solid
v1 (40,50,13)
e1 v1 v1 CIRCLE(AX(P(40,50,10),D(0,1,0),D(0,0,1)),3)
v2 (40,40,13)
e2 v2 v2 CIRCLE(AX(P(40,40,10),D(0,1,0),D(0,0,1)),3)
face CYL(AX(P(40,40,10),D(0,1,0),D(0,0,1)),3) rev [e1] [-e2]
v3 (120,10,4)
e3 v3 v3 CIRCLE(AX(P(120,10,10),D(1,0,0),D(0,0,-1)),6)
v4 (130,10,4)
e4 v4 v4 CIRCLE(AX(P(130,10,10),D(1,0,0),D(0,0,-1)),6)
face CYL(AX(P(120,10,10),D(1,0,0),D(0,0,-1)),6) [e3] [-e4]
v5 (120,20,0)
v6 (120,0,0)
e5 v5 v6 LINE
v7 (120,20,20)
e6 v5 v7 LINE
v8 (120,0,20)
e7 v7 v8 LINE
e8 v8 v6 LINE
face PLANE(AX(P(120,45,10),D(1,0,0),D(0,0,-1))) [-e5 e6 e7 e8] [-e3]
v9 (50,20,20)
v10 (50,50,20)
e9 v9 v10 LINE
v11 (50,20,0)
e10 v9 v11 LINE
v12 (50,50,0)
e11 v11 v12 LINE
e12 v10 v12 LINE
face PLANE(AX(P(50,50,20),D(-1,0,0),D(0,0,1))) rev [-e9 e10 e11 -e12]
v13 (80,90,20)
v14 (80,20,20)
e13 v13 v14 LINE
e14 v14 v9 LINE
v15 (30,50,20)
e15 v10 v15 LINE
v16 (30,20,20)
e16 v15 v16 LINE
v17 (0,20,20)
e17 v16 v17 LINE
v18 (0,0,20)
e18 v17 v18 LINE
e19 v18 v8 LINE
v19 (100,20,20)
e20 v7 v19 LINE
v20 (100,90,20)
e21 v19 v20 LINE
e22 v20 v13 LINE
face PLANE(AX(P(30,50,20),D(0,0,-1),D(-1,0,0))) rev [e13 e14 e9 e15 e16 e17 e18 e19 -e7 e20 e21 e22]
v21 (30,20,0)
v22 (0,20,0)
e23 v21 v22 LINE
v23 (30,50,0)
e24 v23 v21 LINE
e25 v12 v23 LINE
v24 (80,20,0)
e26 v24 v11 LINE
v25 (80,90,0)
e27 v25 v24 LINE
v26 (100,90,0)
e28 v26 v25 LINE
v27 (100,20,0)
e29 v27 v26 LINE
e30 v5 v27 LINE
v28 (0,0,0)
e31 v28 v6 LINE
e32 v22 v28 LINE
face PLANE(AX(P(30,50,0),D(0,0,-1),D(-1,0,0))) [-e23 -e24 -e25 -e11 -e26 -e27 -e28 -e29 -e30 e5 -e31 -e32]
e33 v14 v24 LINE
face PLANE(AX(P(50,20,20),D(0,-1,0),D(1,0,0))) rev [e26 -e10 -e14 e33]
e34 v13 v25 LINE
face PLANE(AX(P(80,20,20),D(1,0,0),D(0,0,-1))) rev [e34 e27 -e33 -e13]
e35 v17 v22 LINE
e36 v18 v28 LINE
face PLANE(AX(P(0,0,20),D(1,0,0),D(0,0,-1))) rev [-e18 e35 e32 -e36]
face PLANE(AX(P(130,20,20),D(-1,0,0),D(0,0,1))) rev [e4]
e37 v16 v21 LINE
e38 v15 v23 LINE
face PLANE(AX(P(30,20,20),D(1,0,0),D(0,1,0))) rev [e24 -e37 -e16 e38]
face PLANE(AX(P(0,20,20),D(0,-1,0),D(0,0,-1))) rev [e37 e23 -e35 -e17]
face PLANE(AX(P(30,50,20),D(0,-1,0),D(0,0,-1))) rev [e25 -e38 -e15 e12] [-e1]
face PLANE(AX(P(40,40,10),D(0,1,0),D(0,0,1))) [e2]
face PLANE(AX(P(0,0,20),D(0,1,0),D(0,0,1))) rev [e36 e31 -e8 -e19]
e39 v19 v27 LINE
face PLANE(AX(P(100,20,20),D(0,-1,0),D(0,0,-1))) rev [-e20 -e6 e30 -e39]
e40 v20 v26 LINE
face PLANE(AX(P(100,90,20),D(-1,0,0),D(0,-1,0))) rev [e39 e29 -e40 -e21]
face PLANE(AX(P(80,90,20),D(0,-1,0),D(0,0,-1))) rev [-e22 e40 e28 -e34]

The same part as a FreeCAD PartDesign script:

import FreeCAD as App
import Part
import Sketcher
Q = App.Units.Quantity


def add_polygon(sketch, points):
    """Adds a closed chain of lines whose ends are joined by coincident constraints."""
    first, n = sketch.GeometryCount, len(points)
    for a, b in zip(points, points[1:] + points[:1]):
        sketch.addGeometry(Part.LineSegment(App.Vector(*a, 0), App.Vector(*b, 0)), False)
    for i in range(n):
        sketch.addConstraint(Sketcher.Constraint("Coincident", first + i, 2, first + (i + 1) % n, 1))

doc = App.newDocument("Part")
body = doc.addObject("PartDesign::Body", "Body")

sketch1 = body.newObject("Sketcher::SketchObject", "Sketch")
sketch1.AttachmentSupport = (doc.getObject("XY_Plane"), [""])
sketch1.MapMode = "FlatFace"
add_polygon(sketch1, [(50, 50), (30, 50), (30, 20), (0, 20), (0, 0), (130, 0), (130, 20), (100, 20), (100, 90), (80, 90), (80, 20), (50, 20)])
sketch1.addConstraint([
    Sketcher.Constraint("Horizontal", 0),
    Sketcher.Constraint("Vertical", 1),
    Sketcher.Constraint("Horizontal", 2),
    Sketcher.Constraint("Vertical", 3),
    Sketcher.Constraint("Horizontal", 4),
    Sketcher.Constraint("Vertical", 5),
    Sketcher.Constraint("Horizontal", 6),
    Sketcher.Constraint("Vertical", 7),
    Sketcher.Constraint("Horizontal", 8),
    Sketcher.Constraint("Vertical", 9),
    Sketcher.Constraint("Horizontal", 10),
    Sketcher.Constraint("Vertical", 11),
    Sketcher.Constraint("Coincident", 3, 2, -1, 1),
    Sketcher.Constraint("Horizontal", 2, 2, 5, 2),
    Sketcher.Constraint("Horizontal", 6, 2, 9, 2),
    Sketcher.Constraint("Equal", 2, 6),
    Sketcher.Constraint("Equal", 0, 8),
    Sketcher.Constraint("Equal", 6, 10),
    Sketcher.Constraint("Equal", 10, 1),
    Sketcher.Constraint("Equal", 8, 3),
    Sketcher.Constraint("DistanceX", 0, 2, 0, 1, Q("20 mm")),
    Sketcher.Constraint("DistanceX", 2, 2, 2, 1, Q("30 mm")),
    Sketcher.Constraint("DistanceY", 7, 1, 7, 2, Q("70 mm")),
])
pad1 = body.newObject("PartDesign::Pad", "Pad")
pad1.Profile = sketch1
pad1.Length = 20

sketch2 = body.newObject("Sketcher::SketchObject", "Sketch001")
sketch2.AttachmentSupport = (doc.getObject("XZ_Plane"), [""])
sketch2.MapMode = "FlatFace"
sketch2.AttachmentOffset = App.Placement(App.Vector(0, 0, -50), App.Rotation())
sketch2.addGeometry(Part.Circle(App.Vector(40, 10, 0), App.Vector(0, 0, 1), 3), False)
sketch2.addConstraint([
    Sketcher.Constraint("Diameter", 0, Q("6 mm")),
    Sketcher.Constraint("DistanceX", -1, 1, 0, 3, Q("40 mm")),
    Sketcher.Constraint("DistanceY", -1, 1, 0, 3, Q("10 mm")),
])
pocket1 = body.newObject("PartDesign::Pocket", "Pocket")
pocket1.Profile = sketch2
pocket1.Length = 10
pocket1.Reversed = True

sketch3 = body.newObject("Sketcher::SketchObject", "Sketch002")
sketch3.AttachmentSupport = (doc.getObject("YZ_Plane"), [""])
sketch3.MapMode = "FlatFace"
sketch3.AttachmentOffset = App.Placement(App.Vector(0, 0, 130), App.Rotation())
add_polygon(sketch3, [(107, 37), (-17, 37), (-17, -17), (107, -17)])
sketch3.addGeometry(Part.Circle(App.Vector(10, 10, 0), App.Vector(0, 0, 1), 6), False)
sketch3.addConstraint([
    Sketcher.Constraint("Horizontal", 0),
    Sketcher.Constraint("Vertical", 1),
    Sketcher.Constraint("Horizontal", 2),
    Sketcher.Constraint("Vertical", 3),
    Sketcher.Constraint("Diameter", 4, Q("12 mm")),
    Sketcher.Constraint("DistanceX", -1, 1, 4, 3, Q("10 mm")),
    Sketcher.Constraint("DistanceY", -1, 1, 4, 3, Q("10 mm")),
    Sketcher.Constraint("DistanceX", 0, 2, 0, 1, Q("123.874 mm")),
    Sketcher.Constraint("DistanceY", 1, 2, 1, 1, Q("53.874 mm")),
    Sketcher.Constraint("DistanceX", 0, 2, -1, 1, Q("16.937 mm")),
    Sketcher.Constraint("DistanceY", -1, 1, 0, 2, Q("36.937 mm")),
])
pocket2 = body.newObject("PartDesign::Pocket", "Pocket001")
pocket2.Profile = sketch3
pocket2.Length = 10

doc.recompute()
